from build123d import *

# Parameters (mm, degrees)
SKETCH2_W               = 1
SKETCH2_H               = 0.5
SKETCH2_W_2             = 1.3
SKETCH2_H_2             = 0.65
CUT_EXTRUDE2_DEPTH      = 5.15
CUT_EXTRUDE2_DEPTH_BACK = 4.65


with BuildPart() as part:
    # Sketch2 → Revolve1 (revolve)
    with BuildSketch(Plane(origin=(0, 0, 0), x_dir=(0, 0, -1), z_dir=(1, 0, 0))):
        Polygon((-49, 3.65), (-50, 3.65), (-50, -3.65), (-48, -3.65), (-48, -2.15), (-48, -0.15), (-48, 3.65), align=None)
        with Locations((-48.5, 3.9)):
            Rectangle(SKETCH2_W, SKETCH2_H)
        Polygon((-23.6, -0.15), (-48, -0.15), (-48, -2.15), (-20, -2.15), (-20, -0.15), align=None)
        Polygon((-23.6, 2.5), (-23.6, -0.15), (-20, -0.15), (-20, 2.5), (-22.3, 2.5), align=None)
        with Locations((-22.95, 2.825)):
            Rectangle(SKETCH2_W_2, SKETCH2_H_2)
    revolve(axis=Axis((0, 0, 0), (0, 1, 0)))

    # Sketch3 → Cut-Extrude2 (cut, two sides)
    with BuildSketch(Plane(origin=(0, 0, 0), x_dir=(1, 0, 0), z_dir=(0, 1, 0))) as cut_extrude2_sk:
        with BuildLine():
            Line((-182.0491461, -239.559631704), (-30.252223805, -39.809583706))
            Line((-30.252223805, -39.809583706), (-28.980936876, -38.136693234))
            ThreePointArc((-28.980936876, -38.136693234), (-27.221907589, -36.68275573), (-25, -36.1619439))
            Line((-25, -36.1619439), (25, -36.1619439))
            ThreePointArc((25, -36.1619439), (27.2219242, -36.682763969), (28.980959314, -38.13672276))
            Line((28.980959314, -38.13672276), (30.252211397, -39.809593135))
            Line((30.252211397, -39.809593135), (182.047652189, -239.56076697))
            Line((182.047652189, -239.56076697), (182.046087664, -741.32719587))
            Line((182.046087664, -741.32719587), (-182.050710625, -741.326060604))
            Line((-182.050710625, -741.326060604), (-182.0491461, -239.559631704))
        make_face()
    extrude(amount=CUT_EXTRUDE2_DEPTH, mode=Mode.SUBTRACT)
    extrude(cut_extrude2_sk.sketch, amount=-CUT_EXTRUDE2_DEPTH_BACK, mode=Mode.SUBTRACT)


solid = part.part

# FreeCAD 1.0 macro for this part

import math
import FreeCAD as App
import Part
import Sketcher

V = App.Vector
Q = App.Units.Quantity


def add_polygon(sketch, points):
    """Adds a closed chain of lines whose ends are joined by coincident constraints."""
    first, n = sketch.GeometryCount, len(points)
    for a, b in zip(points, points[1:] + points[:1]):
        sketch.addGeometry(Part.LineSegment(App.Vector(*a, 0), App.Vector(*b, 0)), False)
    for i in range(n):
        sketch.addConstraint(Sketcher.Constraint("Coincident", first + i, 2, first + (i + 1) % n, 1))

doc = App.newDocument("Part")
params = doc.addObject("Spreadsheet::Sheet", "Params")
for row, (alias, value) in enumerate([
    ("sketch1_height", "2 mm"),
    ("sketch1_height2", "28 mm"),
    ("sketch1_width", "7.3 mm"),
    ("sketch1_width2", "1.5 mm"),
    ("sketch1_width3", "3.3 mm"),
    ("revolution_angle", "360 deg"),
    ("sketch2_radius", "5 mm"),
    ("sketch2_radius2", "5 mm"),
    ("sketch2_width", "50 mm"),
], start=1):
    params.set(f"A{row}", alias)
    params.set(f"B{row}", "=" + value)
    params.setAlias(f"B{row}", alias)

body = doc.addObject("PartDesign::Body", "Body")

# Sketch on YZ plane
sketch1 = body.newObject("Sketcher::SketchObject", "Sketch")
sketch1.AttachmentSupport = (doc.getObject("YZ_Plane"), [""])
sketch1.MapMode = "FlatFace"
add_polygon(sketch1, [(3.6, 50), (-3.6, 50), (-3.6, 48), (-2.1, 48), (-2.1, 20), (2.5, 20), (2.5, 22.3), (3.1, 22.3), (3.1, 23.6), (-0.1, 23.6), (-0.1, 48), (4.2, 48), (4.2, 49), (3.6, 49)])  # lines 0-13
sketch1.addConstraint([
    Sketcher.Constraint("Horizontal", 0),
    Sketcher.Constraint("Vertical", 1),
    Sketcher.Constraint("Horizontal", 2),
    Sketcher.Constraint("Vertical", 3),
    Sketcher.Constraint("Horizontal", 4),
    Sketcher.Constraint("Vertical", 5),
    Sketcher.Constraint("Horizontal", 6),
    Sketcher.Constraint("Vertical", 7),
    Sketcher.Constraint("Horizontal", 8),
    Sketcher.Constraint("Vertical", 9),
    Sketcher.Constraint("Horizontal", 10),
    Sketcher.Constraint("Vertical", 11),
    Sketcher.Constraint("Horizontal", 12),
    Sketcher.Constraint("Vertical", 13),
    Sketcher.Constraint("Horizontal", 2, 2, 9, 2),
    Sketcher.Constraint("Equal", 11, 13),
    Sketcher.Constraint("DistanceY", 1, 2, 1, 1, Q("2 mm")),
    Sketcher.Constraint("DistanceY", 3, 2, 3, 1, Q("28 mm")),
    Sketcher.Constraint("DistanceX", 0, 2, 0, 1, Q("7.3 mm")),
    Sketcher.Constraint("DistanceX", 2, 1, 2, 2, Q("1.5 mm")),
    Sketcher.Constraint("DistanceX", 8, 2, 8, 1, Q("3.3 mm")),
    Sketcher.Constraint("DistanceX", 10, 1, 10, 2, Q("4.3 mm")),
    Sketcher.Constraint("DistanceX", 12, 2, 12, 1, Q("0.5 mm")),
    Sketcher.Constraint("DistanceY", 5, 1, 5, 2, Q("2.3 mm")),
    Sketcher.Constraint("DistanceY", 7, 1, 7, 2, Q("1.3 mm")),
    Sketcher.Constraint("DistanceY", -1, 1, 0, 2, Q("50 mm")),
    Sketcher.Constraint("DistanceX", 4, 1, 4, 2, Q("4.65 mm")),
    Sketcher.Constraint("DistanceX", -1, 1, 4, 2, Q("2.5 mm")),
])
sketch1.setExpression("Constraints[30]", "Params.sketch1_height")
sketch1.setExpression("Constraints[31]", "Params.sketch1_height2")
sketch1.setExpression("Constraints[32]", "Params.sketch1_width")
sketch1.setExpression("Constraints[33]", "Params.sketch1_width2")
sketch1.setExpression("Constraints[34]", "Params.sketch1_width3")
revolution = body.newObject("PartDesign::Revolution", "Revolution")
revolution.Profile = sketch1
revolution.ReferenceAxis = (sketch1, ["H_Axis"])
revolution.setExpression("Angle", "Params.revolution_angle")

# Sketch on XZ plane
sketch2 = body.newObject("Sketcher::SketchObject", "Sketch001")
sketch2.AttachmentSupport = (doc.getObject("XZ_Plane"), [""])
sketch2.MapMode = "FlatFace"
sketch2.addGeometry([
    Part.LineSegment(V(-30.252224, 39.809584, 0), V(-182.049146, 239.559632, 0)),  # 0
    Part.LineSegment(V(-182.049146, 239.559632, 0), V(-182.050711, 741.326061, 0)),  # 1
    Part.LineSegment(V(-182.050711, 741.326061, 0), V(182.046088, 741.327196, 0)),  # 2
    Part.LineSegment(V(182.046088, 741.327196, 0), V(182.047652, 239.560767, 0)),  # 3
    Part.LineSegment(V(182.047652, 239.560767, 0), V(30.252211, 39.809593, 0)),  # 4
    Part.LineSegment(V(30.252211, 39.809593, 0), V(28.980959, 38.136723, 0)),  # 5
    Part.ArcOfCircle(Part.Circle(V(25, 41.161944, 0), V(0, 0, 1), 5), math.radians(-90), math.radians(-37.232025)),  # 6
    Part.LineSegment(V(25, 36.161944, 0), V(-25, 36.161944, 0)),  # 7
    Part.ArcOfCircle(Part.Circle(V(-25, 41.161944, 0), V(0, 0, 1), 5), math.radians(-142.76755), math.radians(-90)),  # 8
    Part.LineSegment(V(-28.980937, 38.136693, 0), V(-30.252224, 39.809584, 0)),  # 9
], False)
sketch2.addConstraint([
    Sketcher.Constraint("Coincident", 0, 2, 1, 1),
    Sketcher.Constraint("Coincident", 1, 2, 2, 1),
    Sketcher.Constraint("Coincident", 2, 2, 3, 1),
    Sketcher.Constraint("Coincident", 3, 2, 4, 1),
    Sketcher.Constraint("Coincident", 4, 2, 5, 1),
    Sketcher.Constraint("Coincident", 5, 2, 6, 2),
    Sketcher.Constraint("Coincident", 6, 1, 7, 1),
    Sketcher.Constraint("Coincident", 7, 2, 8, 2),
    Sketcher.Constraint("Coincident", 8, 1, 9, 1),
    Sketcher.Constraint("Coincident", 9, 2, 0, 1),
    Sketcher.Constraint("Horizontal", 7),
    Sketcher.Constraint("Radius", 6, Q("5 mm")),
    Sketcher.Constraint("Radius", 8, Q("5 mm")),
    Sketcher.Constraint("DistanceX", 7, 2, 7, 1, Q("50 mm")),
    Sketcher.Constraint("DistanceX", -1, 1, 6, 3, Q("25 mm")),
    Sketcher.Constraint("DistanceX", 8, 3, -1, 1, Q("25 mm")),
    Sketcher.Constraint("DistanceX", -1, 1, 6, 1, Q("25 mm")),
    Sketcher.Constraint("Distance", 2, Q("364.096798 mm")),
    Sketcher.Constraint("DistanceX", 0, 2, 3, 2, Q("364.096798 mm")),
    Sketcher.Constraint("Distance", 1, Q("501.766429 mm")),
    Sketcher.Constraint("Distance", 3, Q("501.766429 mm")),
    Sketcher.Constraint("Distance", 5, Q("2.10109 mm")),
    Sketcher.Constraint("DistanceY", -1, 1, 0, 2, Q("239.559632 mm")),
    Sketcher.Constraint("DistanceX", 1, 2, -1, 1, Q("182.050711 mm")),
    Sketcher.Constraint("DistanceX", -1, 1, 4, 2, Q("30.252211 mm")),
    Sketcher.Constraint("DistanceX", -1, 1, 5, 2, Q("28.980959 mm")),
    Sketcher.Constraint("DistanceY", 6, 3, 2, 2, Q("700.165252 mm")),
    Sketcher.Constraint("DistanceX", 4, 2, 3, 2, Q("151.795441 mm")),
    Sketcher.Constraint("DistanceY", 4, 2, 0, 2, Q("199.750039 mm")),
    Sketcher.Constraint("DistanceY", 7, 2, 8, 1, Q("1.974749 mm")),
    Sketcher.Constraint("DistanceY", 8, 1, 9, 2, Q("1.67289 mm")),
    Sketcher.Constraint("Distance", 0, Q("250.883214 mm")),
])
sketch2.setExpression("Constraints[11]", "Params.sketch2_radius")
sketch2.setExpression("Constraints[12]", "Params.sketch2_radius2")
sketch2.setExpression("Constraints[13]", "Params.sketch2_width")
pocket1 = body.newObject("PartDesign::Pocket", "Pocket")
pocket1.Profile = sketch2
pocket1.Type = "ThroughAll"
pocket1.Midplane = True

doc.recompute()
